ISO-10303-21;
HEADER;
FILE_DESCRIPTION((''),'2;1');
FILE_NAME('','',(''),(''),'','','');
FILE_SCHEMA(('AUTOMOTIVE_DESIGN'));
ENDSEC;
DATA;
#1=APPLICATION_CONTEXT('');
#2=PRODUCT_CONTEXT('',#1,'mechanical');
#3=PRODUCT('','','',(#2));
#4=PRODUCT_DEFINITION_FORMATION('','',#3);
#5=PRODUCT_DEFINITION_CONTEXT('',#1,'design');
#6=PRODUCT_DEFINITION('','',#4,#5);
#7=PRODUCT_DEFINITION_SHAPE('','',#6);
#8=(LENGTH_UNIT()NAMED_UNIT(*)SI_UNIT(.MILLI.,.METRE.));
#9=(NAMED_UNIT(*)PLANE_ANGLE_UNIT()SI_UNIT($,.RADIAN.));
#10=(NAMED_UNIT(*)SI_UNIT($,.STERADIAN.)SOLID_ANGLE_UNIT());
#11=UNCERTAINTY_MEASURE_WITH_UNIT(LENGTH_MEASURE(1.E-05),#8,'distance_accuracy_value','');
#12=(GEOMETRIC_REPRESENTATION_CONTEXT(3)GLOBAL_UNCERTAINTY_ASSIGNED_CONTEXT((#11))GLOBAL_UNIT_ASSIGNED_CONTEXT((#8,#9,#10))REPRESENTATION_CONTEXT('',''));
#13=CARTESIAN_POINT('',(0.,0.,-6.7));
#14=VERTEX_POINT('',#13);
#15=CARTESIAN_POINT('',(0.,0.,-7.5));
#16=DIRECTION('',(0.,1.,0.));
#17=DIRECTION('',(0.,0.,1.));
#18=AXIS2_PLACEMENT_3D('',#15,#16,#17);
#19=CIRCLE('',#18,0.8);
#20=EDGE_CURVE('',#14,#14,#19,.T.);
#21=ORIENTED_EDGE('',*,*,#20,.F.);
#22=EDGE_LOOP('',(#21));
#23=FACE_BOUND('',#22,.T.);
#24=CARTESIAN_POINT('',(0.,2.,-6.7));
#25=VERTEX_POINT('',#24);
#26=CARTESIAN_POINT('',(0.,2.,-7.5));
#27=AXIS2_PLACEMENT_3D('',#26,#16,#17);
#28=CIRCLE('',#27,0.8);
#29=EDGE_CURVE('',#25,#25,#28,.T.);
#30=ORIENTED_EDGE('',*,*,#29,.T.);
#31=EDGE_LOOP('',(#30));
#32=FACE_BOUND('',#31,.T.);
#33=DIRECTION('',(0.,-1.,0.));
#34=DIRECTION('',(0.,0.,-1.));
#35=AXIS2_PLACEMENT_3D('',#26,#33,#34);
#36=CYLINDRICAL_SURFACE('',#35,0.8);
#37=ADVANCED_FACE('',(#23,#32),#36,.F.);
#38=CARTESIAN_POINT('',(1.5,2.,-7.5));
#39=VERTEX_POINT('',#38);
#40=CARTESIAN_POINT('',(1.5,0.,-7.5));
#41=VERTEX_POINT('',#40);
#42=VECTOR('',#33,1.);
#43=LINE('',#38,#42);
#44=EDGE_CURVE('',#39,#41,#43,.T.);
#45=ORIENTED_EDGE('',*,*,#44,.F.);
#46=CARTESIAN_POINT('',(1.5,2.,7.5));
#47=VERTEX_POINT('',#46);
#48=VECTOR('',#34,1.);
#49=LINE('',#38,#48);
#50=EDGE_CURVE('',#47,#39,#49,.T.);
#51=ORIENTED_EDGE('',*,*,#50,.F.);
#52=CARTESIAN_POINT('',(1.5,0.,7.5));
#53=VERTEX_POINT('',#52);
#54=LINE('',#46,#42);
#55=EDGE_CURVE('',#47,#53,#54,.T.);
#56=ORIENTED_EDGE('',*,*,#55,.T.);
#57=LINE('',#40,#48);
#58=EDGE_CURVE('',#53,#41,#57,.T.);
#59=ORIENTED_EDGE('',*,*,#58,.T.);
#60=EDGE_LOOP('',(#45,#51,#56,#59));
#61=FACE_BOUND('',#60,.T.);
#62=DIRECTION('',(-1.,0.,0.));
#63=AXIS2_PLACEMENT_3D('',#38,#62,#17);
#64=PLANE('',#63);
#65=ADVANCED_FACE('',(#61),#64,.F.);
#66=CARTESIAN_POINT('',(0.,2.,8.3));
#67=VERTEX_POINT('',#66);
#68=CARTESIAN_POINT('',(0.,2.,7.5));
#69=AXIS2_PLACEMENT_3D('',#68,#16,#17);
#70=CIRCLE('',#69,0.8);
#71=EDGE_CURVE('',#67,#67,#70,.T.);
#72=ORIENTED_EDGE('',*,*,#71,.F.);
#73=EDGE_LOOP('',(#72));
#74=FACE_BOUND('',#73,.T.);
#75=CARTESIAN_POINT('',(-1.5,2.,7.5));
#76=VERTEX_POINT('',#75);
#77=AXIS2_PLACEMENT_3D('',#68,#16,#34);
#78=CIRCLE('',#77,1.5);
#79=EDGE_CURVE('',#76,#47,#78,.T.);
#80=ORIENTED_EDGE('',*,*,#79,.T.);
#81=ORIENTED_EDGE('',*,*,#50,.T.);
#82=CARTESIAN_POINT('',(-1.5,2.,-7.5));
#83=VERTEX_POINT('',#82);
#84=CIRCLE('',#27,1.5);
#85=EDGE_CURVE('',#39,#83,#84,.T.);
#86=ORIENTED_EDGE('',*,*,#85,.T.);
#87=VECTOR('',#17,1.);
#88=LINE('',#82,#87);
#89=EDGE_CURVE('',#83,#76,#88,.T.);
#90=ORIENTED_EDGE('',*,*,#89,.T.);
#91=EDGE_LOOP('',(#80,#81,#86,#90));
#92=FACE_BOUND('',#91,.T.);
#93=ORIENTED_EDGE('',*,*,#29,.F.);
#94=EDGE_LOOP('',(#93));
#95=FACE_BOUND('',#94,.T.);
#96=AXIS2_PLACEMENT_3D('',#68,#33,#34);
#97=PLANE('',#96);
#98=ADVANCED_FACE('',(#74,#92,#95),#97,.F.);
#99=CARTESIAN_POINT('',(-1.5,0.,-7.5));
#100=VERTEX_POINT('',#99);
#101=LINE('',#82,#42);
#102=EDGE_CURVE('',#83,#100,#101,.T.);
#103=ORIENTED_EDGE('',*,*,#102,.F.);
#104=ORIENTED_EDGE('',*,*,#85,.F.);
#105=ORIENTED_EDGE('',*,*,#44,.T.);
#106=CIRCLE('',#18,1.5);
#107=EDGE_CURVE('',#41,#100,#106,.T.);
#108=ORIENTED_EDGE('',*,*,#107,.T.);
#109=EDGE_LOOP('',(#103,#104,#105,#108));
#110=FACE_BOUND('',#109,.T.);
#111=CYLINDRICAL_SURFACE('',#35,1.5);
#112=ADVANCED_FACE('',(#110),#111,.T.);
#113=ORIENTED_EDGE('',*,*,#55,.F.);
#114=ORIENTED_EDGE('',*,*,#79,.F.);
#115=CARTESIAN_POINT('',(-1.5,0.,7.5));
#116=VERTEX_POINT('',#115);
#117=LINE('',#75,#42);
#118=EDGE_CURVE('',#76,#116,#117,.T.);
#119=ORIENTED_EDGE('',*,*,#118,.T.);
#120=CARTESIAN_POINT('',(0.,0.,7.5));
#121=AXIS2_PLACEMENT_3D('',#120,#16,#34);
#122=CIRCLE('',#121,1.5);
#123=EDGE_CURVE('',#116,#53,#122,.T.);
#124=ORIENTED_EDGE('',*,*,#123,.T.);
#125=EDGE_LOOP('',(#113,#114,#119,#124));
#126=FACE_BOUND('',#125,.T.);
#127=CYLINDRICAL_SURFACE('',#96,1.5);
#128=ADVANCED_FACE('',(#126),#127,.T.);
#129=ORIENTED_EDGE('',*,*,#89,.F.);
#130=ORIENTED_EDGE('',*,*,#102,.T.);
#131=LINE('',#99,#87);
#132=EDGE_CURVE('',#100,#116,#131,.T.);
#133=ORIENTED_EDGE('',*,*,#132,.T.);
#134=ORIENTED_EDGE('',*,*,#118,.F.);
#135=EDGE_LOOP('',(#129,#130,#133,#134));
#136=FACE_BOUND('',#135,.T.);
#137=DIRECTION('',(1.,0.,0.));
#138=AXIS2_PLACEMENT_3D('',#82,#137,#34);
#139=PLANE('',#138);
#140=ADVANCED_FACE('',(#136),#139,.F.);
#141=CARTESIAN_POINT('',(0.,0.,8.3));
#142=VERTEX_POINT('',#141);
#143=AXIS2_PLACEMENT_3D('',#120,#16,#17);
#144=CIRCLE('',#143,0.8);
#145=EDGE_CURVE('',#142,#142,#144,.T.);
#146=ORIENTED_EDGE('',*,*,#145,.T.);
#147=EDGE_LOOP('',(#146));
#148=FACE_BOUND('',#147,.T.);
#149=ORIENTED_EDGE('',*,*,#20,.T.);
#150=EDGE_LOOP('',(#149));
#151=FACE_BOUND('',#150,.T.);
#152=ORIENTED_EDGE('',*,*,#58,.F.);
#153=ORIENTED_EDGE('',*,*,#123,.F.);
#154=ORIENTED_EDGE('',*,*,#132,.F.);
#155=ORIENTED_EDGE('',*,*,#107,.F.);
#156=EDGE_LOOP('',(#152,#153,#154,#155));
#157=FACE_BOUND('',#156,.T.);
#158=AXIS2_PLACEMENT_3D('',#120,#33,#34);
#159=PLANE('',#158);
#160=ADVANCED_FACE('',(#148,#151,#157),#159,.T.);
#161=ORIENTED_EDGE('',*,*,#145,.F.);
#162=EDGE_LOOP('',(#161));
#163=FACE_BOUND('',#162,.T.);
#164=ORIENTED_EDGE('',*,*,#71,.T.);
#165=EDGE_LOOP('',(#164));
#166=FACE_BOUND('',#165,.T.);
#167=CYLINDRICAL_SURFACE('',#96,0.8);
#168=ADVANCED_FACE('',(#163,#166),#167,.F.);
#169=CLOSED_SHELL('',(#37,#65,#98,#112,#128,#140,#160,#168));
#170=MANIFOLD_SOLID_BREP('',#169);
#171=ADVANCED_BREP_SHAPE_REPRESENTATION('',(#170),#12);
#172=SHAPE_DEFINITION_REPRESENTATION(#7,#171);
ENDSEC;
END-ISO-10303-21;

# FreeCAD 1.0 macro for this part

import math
import FreeCAD as App
import Part
import Sketcher
from FreeCAD import Vector

doc = App.newDocument("Part")
body = doc.addObject("PartDesign::Body", "Body")

# Sketch on XZ plane
sketch1 = body.newObject("Sketcher::SketchObject", "Sketch")
sketch1.AttachmentSupport = (doc.getObject("XZ_Plane"), [""])
sketch1.MapMode = "FlatFace"
sketch1.addGeometry(Part.LineSegment(Vector(-1.5, -7.5, 0), Vector(-1.5, 7.5, 0)), False)
sketch1.addGeometry(Part.ArcOfCircle(Part.Circle(Vector(0, 7.5, 0), Vector(0, 0, 1), 1.5), math.radians(0), math.radians(180)), False)
sketch1.addGeometry(Part.LineSegment(Vector(1.5, 7.5, 0), Vector(1.5, -7.5, 0)), False)
sketch1.addGeometry(Part.ArcOfCircle(Part.Circle(Vector(0, -7.5, 0), Vector(0, 0, 1), 1.5), math.radians(180), math.radians(360)), False)
sketch1.addGeometry(Part.Circle(Vector(0, 7.5, 0), Vector(0, 0, 1), 0.8), False)
sketch1.addGeometry(Part.Circle(Vector(0, -7.5, 0), Vector(0, 0, 1), 0.8), False)
sketch1.addConstraint(Sketcher.Constraint("Tangent", 0, 2, 1, 2))
sketch1.addConstraint(Sketcher.Constraint("Tangent", 1, 1, 2, 1))
sketch1.addConstraint(Sketcher.Constraint("Tangent", 2, 2, 3, 2))
sketch1.addConstraint(Sketcher.Constraint("Tangent", 3, 1, 0, 1))
sketch1.addConstraint(Sketcher.Constraint("Vertical", 0))
sketch1.addConstraint(Sketcher.Constraint("Vertical", 2))
sketch1.addConstraint(Sketcher.Constraint("Coincident", 4, 3, 1, 3))
sketch1.addConstraint(Sketcher.Constraint("Coincident", 5, 3, 3, 3))
sketch1.addConstraint(Sketcher.Constraint("Equal", 4, 5))
sketch1.addConstraint(Sketcher.Constraint("Symmetric", 1, 3, 3, 3, -1, 1))
sketch1.addConstraint(Sketcher.Constraint("Diameter", 4, 1.6))
sketch1.addConstraint(Sketcher.Constraint("Radius", 1, 1.5))
sketch1.addConstraint(Sketcher.Constraint("DistanceY", 0, 1, 0, 2, 15.0))
pad1 = body.newObject("PartDesign::Pad", "Pad")
pad1.Profile = sketch1
pad1.Length = 2
pad1.Reversed = True

doc.recompute()
